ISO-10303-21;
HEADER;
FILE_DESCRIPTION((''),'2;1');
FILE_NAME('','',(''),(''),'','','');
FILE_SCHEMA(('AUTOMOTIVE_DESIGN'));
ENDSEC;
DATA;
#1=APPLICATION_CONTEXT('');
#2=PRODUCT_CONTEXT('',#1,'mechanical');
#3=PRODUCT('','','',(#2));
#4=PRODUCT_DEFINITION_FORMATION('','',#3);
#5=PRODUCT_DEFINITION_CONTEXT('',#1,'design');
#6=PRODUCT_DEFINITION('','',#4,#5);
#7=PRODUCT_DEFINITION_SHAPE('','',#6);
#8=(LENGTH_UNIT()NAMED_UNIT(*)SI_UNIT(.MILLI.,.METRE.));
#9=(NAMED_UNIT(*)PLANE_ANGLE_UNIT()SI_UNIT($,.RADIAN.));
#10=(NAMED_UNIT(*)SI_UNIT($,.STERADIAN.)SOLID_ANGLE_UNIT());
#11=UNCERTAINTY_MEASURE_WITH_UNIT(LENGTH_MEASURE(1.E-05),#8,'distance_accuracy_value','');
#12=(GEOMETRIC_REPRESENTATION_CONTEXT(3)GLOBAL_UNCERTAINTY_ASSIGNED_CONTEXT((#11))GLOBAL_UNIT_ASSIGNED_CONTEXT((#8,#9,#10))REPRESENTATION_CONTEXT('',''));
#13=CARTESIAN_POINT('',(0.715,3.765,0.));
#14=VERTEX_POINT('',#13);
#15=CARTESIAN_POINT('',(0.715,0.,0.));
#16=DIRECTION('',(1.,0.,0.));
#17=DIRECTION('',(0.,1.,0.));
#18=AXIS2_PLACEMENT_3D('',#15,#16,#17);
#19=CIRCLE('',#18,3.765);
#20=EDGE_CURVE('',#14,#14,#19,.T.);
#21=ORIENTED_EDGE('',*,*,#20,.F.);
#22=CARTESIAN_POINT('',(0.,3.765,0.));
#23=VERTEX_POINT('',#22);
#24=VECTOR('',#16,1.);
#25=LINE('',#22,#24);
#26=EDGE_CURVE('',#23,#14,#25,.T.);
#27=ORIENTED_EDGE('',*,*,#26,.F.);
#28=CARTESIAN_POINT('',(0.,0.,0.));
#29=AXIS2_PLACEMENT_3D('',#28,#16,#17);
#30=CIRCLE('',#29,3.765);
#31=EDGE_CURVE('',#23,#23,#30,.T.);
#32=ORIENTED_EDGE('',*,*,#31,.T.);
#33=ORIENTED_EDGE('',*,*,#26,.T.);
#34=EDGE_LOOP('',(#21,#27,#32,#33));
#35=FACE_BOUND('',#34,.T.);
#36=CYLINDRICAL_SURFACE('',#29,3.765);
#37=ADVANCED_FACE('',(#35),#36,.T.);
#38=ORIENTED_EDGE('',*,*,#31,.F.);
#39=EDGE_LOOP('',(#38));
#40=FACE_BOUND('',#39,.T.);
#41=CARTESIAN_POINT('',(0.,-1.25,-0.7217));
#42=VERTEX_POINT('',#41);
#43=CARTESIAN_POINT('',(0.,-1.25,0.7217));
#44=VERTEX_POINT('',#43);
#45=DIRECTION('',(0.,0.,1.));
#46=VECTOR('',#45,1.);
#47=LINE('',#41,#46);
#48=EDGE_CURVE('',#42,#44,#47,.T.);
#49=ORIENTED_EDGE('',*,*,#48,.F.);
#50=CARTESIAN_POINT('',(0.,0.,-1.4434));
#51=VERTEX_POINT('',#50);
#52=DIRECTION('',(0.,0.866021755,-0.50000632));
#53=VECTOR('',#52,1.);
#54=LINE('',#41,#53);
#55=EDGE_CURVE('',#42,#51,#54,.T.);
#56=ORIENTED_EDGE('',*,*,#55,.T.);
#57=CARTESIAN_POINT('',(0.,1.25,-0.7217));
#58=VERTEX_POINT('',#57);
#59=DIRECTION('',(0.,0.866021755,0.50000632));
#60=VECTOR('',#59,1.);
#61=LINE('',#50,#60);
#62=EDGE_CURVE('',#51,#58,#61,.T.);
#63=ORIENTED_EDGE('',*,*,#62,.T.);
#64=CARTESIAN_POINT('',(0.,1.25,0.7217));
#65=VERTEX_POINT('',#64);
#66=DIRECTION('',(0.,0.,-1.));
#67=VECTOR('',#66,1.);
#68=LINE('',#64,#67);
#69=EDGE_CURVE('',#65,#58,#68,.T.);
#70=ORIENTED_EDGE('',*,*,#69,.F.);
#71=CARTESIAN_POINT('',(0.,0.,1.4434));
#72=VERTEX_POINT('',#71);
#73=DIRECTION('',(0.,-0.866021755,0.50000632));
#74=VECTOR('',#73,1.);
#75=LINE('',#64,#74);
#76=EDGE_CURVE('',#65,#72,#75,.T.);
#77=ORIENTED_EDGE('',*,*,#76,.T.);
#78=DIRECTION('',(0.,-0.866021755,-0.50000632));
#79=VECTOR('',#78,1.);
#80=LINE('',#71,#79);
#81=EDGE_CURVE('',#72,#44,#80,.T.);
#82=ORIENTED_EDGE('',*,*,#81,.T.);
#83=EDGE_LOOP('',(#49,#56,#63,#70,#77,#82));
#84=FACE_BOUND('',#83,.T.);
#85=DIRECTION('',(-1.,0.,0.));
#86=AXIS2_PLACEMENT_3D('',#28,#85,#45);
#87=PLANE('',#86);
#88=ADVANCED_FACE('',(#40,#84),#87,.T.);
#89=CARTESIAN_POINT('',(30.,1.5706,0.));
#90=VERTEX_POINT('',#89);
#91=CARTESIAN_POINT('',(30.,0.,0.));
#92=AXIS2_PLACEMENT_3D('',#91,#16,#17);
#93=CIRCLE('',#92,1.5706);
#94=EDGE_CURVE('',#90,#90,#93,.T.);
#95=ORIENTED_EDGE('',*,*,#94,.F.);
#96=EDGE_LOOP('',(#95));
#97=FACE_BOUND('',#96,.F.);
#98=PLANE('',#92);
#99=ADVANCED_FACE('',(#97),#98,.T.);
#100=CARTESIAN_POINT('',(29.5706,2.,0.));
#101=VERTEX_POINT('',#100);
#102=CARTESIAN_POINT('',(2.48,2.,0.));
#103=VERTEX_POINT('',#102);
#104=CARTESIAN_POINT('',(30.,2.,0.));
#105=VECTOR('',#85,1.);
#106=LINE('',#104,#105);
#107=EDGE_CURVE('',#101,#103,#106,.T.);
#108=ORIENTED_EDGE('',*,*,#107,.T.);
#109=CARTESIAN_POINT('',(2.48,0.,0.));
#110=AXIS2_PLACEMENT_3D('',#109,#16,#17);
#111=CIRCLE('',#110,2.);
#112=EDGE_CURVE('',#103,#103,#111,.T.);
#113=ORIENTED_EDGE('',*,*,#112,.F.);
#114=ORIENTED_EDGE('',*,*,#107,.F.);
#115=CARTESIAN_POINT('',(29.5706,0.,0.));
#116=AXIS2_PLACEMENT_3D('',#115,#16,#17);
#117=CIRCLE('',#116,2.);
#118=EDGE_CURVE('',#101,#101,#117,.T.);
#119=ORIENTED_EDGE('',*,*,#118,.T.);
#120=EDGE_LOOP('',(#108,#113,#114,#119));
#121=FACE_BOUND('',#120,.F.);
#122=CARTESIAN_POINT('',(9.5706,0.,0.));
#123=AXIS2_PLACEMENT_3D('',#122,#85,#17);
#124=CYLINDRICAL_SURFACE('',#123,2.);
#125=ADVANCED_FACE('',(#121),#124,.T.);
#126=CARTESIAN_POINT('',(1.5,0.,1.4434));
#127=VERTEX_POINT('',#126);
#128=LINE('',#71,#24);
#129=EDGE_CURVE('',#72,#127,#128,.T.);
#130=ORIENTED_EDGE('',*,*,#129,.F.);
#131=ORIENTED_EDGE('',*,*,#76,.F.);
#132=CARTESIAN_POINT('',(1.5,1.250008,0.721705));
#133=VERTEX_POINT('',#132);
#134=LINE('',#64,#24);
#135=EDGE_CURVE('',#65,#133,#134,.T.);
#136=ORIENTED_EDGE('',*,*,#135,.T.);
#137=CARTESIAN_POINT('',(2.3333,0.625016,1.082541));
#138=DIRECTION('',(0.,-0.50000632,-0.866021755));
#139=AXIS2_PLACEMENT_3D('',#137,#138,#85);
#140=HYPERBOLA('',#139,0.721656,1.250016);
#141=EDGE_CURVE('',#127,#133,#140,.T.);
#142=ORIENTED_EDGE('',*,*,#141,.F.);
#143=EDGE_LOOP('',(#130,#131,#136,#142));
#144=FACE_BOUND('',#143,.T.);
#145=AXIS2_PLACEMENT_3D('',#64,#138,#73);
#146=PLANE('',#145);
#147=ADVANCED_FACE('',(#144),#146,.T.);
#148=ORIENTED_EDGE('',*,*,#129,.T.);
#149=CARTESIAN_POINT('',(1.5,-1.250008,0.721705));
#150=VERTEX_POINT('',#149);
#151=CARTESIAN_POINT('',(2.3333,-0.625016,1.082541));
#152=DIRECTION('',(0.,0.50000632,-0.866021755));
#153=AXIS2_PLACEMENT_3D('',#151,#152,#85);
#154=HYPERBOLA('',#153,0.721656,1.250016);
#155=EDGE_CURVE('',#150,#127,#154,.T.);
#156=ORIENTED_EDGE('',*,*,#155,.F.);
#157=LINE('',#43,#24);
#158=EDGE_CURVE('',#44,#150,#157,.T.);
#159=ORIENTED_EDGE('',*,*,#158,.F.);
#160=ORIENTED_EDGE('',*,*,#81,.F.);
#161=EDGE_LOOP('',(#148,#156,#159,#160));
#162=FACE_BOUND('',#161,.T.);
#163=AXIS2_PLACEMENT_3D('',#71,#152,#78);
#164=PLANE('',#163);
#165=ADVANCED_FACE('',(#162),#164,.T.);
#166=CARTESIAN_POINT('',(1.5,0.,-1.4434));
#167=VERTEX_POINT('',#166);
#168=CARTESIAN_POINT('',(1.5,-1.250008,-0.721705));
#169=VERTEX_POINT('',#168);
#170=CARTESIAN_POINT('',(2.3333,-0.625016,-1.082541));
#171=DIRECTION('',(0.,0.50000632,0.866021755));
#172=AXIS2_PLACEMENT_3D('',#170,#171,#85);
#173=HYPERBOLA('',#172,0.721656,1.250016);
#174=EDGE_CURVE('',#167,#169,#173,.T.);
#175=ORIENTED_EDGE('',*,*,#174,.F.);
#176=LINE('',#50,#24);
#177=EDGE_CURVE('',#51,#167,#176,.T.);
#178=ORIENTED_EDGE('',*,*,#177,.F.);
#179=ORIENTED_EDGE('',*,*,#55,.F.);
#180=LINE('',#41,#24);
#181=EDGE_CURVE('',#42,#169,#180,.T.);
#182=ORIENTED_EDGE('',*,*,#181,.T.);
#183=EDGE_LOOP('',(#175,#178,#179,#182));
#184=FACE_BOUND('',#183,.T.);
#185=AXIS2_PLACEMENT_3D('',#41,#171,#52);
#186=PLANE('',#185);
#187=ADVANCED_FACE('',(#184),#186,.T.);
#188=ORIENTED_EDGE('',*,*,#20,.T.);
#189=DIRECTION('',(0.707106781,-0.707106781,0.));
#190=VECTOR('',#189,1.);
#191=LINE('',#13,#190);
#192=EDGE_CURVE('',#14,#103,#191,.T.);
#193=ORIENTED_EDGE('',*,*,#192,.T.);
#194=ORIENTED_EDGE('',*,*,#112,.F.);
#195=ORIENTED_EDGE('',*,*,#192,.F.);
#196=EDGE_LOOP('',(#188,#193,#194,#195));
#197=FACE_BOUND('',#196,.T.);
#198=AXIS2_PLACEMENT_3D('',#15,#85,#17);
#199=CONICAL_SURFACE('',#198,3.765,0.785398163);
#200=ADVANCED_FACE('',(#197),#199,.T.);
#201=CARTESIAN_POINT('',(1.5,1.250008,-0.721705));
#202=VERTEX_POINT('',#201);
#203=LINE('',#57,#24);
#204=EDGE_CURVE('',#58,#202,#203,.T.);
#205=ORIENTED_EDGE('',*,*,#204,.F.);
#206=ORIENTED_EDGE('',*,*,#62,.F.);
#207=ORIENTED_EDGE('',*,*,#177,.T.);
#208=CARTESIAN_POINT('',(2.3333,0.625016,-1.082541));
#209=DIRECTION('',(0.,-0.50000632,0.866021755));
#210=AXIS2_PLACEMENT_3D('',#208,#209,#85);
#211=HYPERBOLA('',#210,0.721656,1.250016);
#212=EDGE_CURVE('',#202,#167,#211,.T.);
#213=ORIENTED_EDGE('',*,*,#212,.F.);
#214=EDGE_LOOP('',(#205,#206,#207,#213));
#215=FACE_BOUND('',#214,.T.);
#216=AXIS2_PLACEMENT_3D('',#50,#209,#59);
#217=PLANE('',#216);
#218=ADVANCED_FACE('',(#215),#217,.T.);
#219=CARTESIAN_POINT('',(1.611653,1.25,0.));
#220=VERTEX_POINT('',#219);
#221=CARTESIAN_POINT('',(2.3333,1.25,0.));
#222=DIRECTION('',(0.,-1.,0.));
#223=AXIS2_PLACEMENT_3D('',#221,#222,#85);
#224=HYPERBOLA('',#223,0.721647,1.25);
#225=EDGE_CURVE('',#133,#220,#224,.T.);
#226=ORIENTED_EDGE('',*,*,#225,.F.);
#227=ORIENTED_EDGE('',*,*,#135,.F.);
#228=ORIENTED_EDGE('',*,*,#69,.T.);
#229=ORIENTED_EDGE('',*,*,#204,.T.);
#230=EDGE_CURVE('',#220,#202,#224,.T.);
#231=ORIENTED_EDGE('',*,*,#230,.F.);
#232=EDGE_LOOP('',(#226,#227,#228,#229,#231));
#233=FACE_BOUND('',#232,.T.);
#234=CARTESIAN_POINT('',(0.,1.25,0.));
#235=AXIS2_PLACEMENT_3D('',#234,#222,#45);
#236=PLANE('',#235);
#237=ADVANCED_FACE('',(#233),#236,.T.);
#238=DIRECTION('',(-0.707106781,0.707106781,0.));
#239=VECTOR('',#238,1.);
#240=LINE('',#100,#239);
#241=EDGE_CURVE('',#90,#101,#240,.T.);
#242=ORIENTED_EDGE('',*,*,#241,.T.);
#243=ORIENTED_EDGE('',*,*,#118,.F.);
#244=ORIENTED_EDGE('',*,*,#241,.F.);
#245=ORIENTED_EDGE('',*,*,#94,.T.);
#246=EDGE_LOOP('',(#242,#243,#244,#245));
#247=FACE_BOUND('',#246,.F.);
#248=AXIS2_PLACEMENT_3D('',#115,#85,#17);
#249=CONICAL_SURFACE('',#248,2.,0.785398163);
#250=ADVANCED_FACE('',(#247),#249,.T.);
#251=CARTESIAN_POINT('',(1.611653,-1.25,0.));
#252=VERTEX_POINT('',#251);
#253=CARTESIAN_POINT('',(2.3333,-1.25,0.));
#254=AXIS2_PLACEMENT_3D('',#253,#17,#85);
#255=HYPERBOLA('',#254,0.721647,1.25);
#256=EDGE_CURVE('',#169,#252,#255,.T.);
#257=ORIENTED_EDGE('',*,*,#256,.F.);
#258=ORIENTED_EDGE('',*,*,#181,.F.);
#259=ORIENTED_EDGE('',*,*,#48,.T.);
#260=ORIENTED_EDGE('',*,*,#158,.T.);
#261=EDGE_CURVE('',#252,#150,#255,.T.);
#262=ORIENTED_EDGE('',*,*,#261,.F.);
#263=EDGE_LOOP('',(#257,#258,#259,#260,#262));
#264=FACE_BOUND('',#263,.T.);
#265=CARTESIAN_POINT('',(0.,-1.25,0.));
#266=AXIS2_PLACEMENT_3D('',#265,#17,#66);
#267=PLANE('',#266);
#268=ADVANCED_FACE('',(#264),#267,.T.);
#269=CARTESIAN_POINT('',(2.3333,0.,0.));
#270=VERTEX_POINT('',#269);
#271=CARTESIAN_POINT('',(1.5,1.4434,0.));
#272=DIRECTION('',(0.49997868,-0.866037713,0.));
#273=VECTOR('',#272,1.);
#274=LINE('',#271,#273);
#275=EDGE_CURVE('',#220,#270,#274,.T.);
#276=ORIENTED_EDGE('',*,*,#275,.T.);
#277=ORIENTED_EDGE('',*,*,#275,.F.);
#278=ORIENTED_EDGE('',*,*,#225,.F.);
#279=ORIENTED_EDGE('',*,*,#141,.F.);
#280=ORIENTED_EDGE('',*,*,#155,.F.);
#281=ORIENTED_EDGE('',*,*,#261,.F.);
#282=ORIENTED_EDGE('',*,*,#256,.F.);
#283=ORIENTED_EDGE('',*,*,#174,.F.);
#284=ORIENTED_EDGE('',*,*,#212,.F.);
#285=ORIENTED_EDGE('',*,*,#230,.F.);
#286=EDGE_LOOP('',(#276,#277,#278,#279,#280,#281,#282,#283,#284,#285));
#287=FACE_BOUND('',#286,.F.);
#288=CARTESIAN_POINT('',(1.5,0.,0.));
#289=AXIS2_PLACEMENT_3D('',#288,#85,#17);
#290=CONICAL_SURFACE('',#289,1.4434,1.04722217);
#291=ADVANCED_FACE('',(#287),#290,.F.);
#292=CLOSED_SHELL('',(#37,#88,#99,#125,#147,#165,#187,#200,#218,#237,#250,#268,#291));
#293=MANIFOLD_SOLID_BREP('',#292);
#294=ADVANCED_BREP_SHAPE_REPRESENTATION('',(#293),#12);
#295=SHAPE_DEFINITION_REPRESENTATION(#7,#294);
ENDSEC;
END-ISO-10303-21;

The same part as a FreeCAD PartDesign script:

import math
import FreeCAD as App
import Part
import Sketcher
Q = App.Units.Quantity


def edges_at(feature, points):
    """Names of the edges that pass closest to the given points."""
    edges = feature.Shape.Edges
    near = lambda p: min(range(len(edges)), key=lambda i: edges[i].distToShape(Part.Vertex(*p))[0])
    return sorted({f"Edge{near(p) + 1}" for p in points})


def add_polygon(sketch, points):
    """Adds a closed chain of lines whose ends are joined by coincident constraints."""
    first, n = sketch.GeometryCount, len(points)
    for a, b in zip(points, points[1:] + points[:1]):
        sketch.addGeometry(Part.LineSegment(App.Vector(*a, 0), App.Vector(*b, 0)), False)
    for i in range(n):
        sketch.addConstraint(Sketcher.Constraint("Coincident", first + i, 2, first + (i + 1) % n, 1))

doc = App.newDocument("Part")
params = doc.addObject("Spreadsheet::Sheet", "Params")
for row, (alias, value) in enumerate([
    ("sketch1_width", "1.5 mm"),
    ("sketch1_height", "2 mm"),
    ("revolution_angle", "360 deg"),
    ("chamfer_size", "0.4294 mm"),
    ("chamfer_size2", "0.4294 mm"),
], start=1):
    params.set(f"A{row}", alias)
    params.set(f"B{row}", "=" + value)
    params.setAlias(f"B{row}", alias)

body = doc.addObject("PartDesign::Body", "Body")

sketch1 = body.newObject("Sketcher::SketchObject", "Sketch")
sketch1.AttachmentSupport = (doc.getObject("XY_Plane"), [""])
sketch1.MapMode = "FlatFace"
add_polygon(sketch1, [(2.3, 0), (30, 0), (30, 2), (2.5, 2), (0.7, 3.8), (0, 3.8), (0, 1.4), (1.5, 1.4)])
sketch1.addConstraint([
    Sketcher.Constraint("Horizontal", 0),
    Sketcher.Constraint("Vertical", 1),
    Sketcher.Constraint("Horizontal", 2),
    Sketcher.Constraint("Horizontal", 4),
    Sketcher.Constraint("Vertical", 5),
    Sketcher.Constraint("Horizontal", 6),
    Sketcher.Constraint("PointOnObject", 0, 2, -1),
    Sketcher.Constraint("PointOnObject", 4, 2, -2),
    Sketcher.Constraint("DistanceX", 6, 1, 6, 2, 1.5),
    Sketcher.Constraint("DistanceX", -1, 1, 0, 2, 30.0),
    Sketcher.Constraint("DistanceY", 1, 1, 1, 2, 2.0),
    Sketcher.Constraint("DistanceX", -1, 1, 2, 2, 2.48),
    Sketcher.Constraint("Angle", 3, Q("135 deg")),
    Sketcher.Constraint("DistanceX", 4, 2, 4, 1, 0.715),
    Sketcher.Constraint("DistanceX", 0, 1, 0, 2, 27.6667),
    Sketcher.Constraint("DistanceY", 5, 2, 5, 1, 2.3216),
])
sketch1.setExpression("Constraints[16]", "Params.sketch1_width")
sketch1.setExpression("Constraints[18]", "Params.sketch1_height")
revolution = body.newObject("PartDesign::Revolution", "Revolution")
revolution.Profile = sketch1
revolution.ReferenceAxis = (sketch1, ["H_Axis"])
revolution.setExpression("Angle", "Params.revolution_angle")

sketch2 = body.newObject("Sketcher::SketchObject", "Sketch001")
sketch2.AttachmentSupport = (doc.getObject("YZ_Plane"), [""])
sketch2.MapMode = "FlatFace"
sketch2.addGeometry([
    Part.LineSegment(App.Vector(1.2, 0.7, 0), App.Vector(0, 1.4, 0)),
    Part.ArcOfCircle(Part.Circle(App.Vector(0, 0, 0), App.Vector(0, 0, 1), 1.4), math.radians(30), math.radians(90)),
    Part.ArcOfCircle(Part.Circle(App.Vector(0, 0, 0), App.Vector(0, 0, 1), 1.4), math.radians(90), math.radians(150)),
    Part.LineSegment(App.Vector(0, 1.4, 0), App.Vector(-1.2, 0.7, 0)),
    Part.ArcOfCircle(Part.Circle(App.Vector(0, 0, 0), App.Vector(0, 0, 1), 1.4), math.radians(-30), math.radians(30)),
    Part.LineSegment(App.Vector(1.2, 0.7, 0), App.Vector(1.2, -0.7, 0)),
    Part.LineSegment(App.Vector(-1.2, 0.7, 0), App.Vector(-1.2, -0.7, 0)),
    Part.ArcOfCircle(Part.Circle(App.Vector(0, 0, 0), App.Vector(0, 0, 1), 1.4), math.radians(150), math.radians(210)),
    Part.LineSegment(App.Vector(-1.2, -0.7, 0), App.Vector(0, -1.4, 0)),
    Part.ArcOfCircle(Part.Circle(App.Vector(0, 0, 0), App.Vector(0, 0, 1), 1.4), math.radians(-150), math.radians(-90)),
    Part.ArcOfCircle(Part.Circle(App.Vector(0, 0, 0), App.Vector(0, 0, 1), 1.4), math.radians(-90), math.radians(-30)),
    Part.LineSegment(App.Vector(0, -1.4, 0), App.Vector(1.2, -0.7, 0)),
], False)
sketch2.addConstraint([
    Sketcher.Constraint("Coincident", 0, 1, 1, 1),
    Sketcher.Constraint("Coincident", 1, 2, 0, 2),
    Sketcher.Constraint("Coincident", 2, 1, 3, 1),
    Sketcher.Constraint("Coincident", 3, 2, 2, 2),
    Sketcher.Constraint("Coincident", 4, 1, 5, 2),
    Sketcher.Constraint("Coincident", 5, 1, 4, 2),
    Sketcher.Constraint("Coincident", 6, 1, 7, 1),
    Sketcher.Constraint("Coincident", 7, 2, 6, 2),
    Sketcher.Constraint("Coincident", 8, 1, 9, 1),
    Sketcher.Constraint("Coincident", 9, 2, 8, 2),
    Sketcher.Constraint("Coincident", 10, 1, 11, 1),
    Sketcher.Constraint("Coincident", 11, 2, 10, 2),
    Sketcher.Constraint("Vertical", 5),
    Sketcher.Constraint("Vertical", 6),
    Sketcher.Constraint("Coincident", 1, 3, -1, 1),
    Sketcher.Constraint("Coincident", 2, 3, -1, 1),
    Sketcher.Constraint("Coincident", 4, 3, -1, 1),
    Sketcher.Constraint("Coincident", 7, 3, -1, 1),
    Sketcher.Constraint("Coincident", 9, 3, -1, 1),
    Sketcher.Constraint("Coincident", 10, 3, -1, 1),
    Sketcher.Constraint("Coincident", 2, 1, 1, 2),
    Sketcher.Constraint("Coincident", 5, 1, 0, 1),
    Sketcher.Constraint("Coincident", 6, 1, 3, 2),
    Sketcher.Constraint("Coincident", 8, 1, 7, 2),
    Sketcher.Constraint("Coincident", 10, 1, 9, 2),
    Sketcher.Constraint("PointOnObject", 1, 2, -2),
    Sketcher.Constraint("PointOnObject", 9, 2, -2),
    Sketcher.Constraint("Parallel", 0, 8),
    Sketcher.Constraint("Parallel", 3, 11),
    Sketcher.Constraint("Angle", 0, Q("149.9996 deg")),
    Sketcher.Constraint("Radius", 1, 1.4434),
])
pad1 = body.newObject("PartDesign::Pad", "Pad")
pad1.Profile = sketch2
pad1.Type = "UpToFirst"
doc.recompute()

chamfer = body.newObject("PartDesign::Chamfer", "Chamfer")
chamfer.Base = (pad1, edges_at(pad1, [(30, -2, 0)]))
chamfer.ChamferType = "Two distances"
chamfer.setExpression("Size", "Params.chamfer_size")
chamfer.setExpression("Size2", "Params.chamfer_size2")

doc.recompute()
